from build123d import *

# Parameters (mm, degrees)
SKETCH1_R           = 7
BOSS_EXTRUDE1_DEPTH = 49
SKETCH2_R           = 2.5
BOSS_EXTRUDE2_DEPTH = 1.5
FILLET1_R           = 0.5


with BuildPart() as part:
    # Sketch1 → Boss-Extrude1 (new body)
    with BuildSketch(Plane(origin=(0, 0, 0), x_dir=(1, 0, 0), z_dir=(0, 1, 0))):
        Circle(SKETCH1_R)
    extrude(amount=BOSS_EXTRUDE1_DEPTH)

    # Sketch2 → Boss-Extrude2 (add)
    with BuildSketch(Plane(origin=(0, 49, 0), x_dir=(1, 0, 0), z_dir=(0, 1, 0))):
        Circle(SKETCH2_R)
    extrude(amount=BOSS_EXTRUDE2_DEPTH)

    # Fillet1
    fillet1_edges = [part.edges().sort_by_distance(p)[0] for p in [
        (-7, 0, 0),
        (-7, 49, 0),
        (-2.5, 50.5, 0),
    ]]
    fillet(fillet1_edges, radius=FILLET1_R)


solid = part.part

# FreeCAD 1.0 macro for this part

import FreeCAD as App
import Part
import Sketcher
from FreeCAD import Vector


def edges_at(feature, points):
    """Names of the edges that pass closest to the given points."""
    edges = feature.Shape.Edges
    near = lambda p: min(range(len(edges)), key=lambda i: edges[i].distToShape(Part.Vertex(*p))[0])
    return sorted({f"Edge{near(p) + 1}" for p in points})

doc = App.newDocument("Part")
body = doc.addObject("PartDesign::Body", "Body")

sketch1 = body.newObject("Sketcher::SketchObject", "Sketch")
sketch1.AttachmentSupport = (doc.getObject("XZ_Plane"), [""])
sketch1.MapMode = "FlatFace"
sketch1.addGeometry(Part.Circle(Vector(0, 0, 0), Vector(0, 0, 1), 7), False)
sketch1.addConstraint([
    Sketcher.Constraint("Coincident", 0, 3, -1, 1),
    Sketcher.Constraint("Diameter", 0, 14.0),
])
pad1 = body.newObject("PartDesign::Pad", "Pad")
pad1.Profile = sketch1
pad1.Length = 49
pad1.Reversed = True

sketch2 = body.newObject("Sketcher::SketchObject", "Sketch001")
sketch2.AttachmentSupport = (doc.getObject("XZ_Plane"), [""])
sketch2.MapMode = "FlatFace"
sketch2.AttachmentOffset = App.Placement(Vector(0, 0, -49), App.Rotation())
sketch2.addGeometry(Part.Circle(Vector(0, 0, 0), Vector(0, 0, 1), 2.5), False)
sketch2.addConstraint([
    Sketcher.Constraint("Coincident", 0, 3, -1, 1),
    Sketcher.Constraint("Diameter", 0, 5.0),
])
pad2 = body.newObject("PartDesign::Pad", "Pad001")
pad2.Profile = sketch2
pad2.Length = 1.5
pad2.Reversed = True
doc.recompute()

fillet = body.newObject("PartDesign::Fillet", "Fillet")
fillet.Base = (pad2, edges_at(pad2, [(-7, 0, 0), (-7, 49, 0), (-2.5, 50.5, 0)]))
fillet.Radius = 0.5

doc.recompute()
